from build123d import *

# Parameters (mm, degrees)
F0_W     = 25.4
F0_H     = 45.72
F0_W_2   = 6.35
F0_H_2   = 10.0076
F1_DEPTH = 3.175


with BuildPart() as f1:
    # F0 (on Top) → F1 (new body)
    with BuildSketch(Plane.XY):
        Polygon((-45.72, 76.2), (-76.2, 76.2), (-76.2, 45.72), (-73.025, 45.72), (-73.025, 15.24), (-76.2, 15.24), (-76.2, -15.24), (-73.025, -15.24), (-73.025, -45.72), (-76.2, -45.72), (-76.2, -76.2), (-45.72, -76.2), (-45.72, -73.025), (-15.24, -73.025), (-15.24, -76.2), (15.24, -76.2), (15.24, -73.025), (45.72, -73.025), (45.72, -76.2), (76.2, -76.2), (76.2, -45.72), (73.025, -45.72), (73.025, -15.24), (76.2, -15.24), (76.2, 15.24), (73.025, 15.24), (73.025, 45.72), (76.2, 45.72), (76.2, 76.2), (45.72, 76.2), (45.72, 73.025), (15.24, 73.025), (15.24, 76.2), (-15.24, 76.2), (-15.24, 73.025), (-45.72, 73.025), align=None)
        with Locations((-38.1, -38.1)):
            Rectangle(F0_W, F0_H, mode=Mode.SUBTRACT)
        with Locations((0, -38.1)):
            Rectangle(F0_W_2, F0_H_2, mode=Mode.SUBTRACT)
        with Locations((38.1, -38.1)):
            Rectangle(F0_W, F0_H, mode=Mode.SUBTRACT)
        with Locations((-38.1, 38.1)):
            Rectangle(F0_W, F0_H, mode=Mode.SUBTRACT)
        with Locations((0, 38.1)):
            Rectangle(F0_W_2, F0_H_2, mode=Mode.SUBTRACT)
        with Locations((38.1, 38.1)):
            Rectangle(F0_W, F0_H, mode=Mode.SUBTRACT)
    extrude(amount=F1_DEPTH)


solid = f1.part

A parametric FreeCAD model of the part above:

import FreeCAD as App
import Part
import Sketcher

V = App.Vector
Q = App.Units.Quantity

doc = App.newDocument("Part")
params = doc.addObject("Spreadsheet::Sheet", "Params")
for row, (alias, value) in enumerate([
    ("sketch1_width", "1 in"),
    ("sketch1_width2", "1.2 in"),
    ("sketch1_height", "1.8 in"),
    ("sketch1_width3", "0.25 in"),
    ("sketch1_width4", "0.125 in"),
    ("pad1_length", "0.125 in"),
], start=1):
    params.set(f"A{row}", alias)
    params.set(f"B{row}", "=" + value)
    params.setAlias(f"B{row}", alias)

body = doc.addObject("PartDesign::Body", "Body")

sketch1 = body.newObject("Sketcher::SketchObject", "Sketch")
sketch1.AttachmentSupport = (doc.getObject("XY_Plane"), [""])
sketch1.MapMode = "FlatFace"
sketch1.addGeometry([
    Part.LineSegment(V(-45.7, 76.2, 0), V(-76.2, 76.2, 0)),
    Part.LineSegment(V(-76.2, 76.2, 0), V(-76.2, 45.7, 0)),
    Part.LineSegment(V(-76.2, 45.7, 0), V(-73, 45.7, 0)),
    Part.LineSegment(V(-73, 45.7, 0), V(-73, 15.2, 0)),
    Part.LineSegment(V(-73, 15.2, 0), V(-76.2, 15.2, 0)),
    Part.LineSegment(V(-76.2, 15.2, 0), V(-76.2, -15.2, 0)),
    Part.LineSegment(V(-76.2, -15.2, 0), V(-73, -15.2, 0)),
    Part.LineSegment(V(-73, -15.2, 0), V(-73, -45.7, 0)),
    Part.LineSegment(V(-73, -45.7, 0), V(-76.2, -45.7, 0)),
    Part.LineSegment(V(-76.2, -45.7, 0), V(-76.2, -76.2, 0)),
    Part.LineSegment(V(-76.2, -76.2, 0), V(-45.7, -76.2, 0)),
    Part.LineSegment(V(-45.7, -76.2, 0), V(-45.7, -73, 0)),
    Part.LineSegment(V(-45.7, -73, 0), V(-15.2, -73, 0)),
    Part.LineSegment(V(-15.2, -73, 0), V(-15.2, -76.2, 0)),
    Part.LineSegment(V(-15.2, -76.2, 0), V(15.2, -76.2, 0)),
    Part.LineSegment(V(15.2, -76.2, 0), V(15.2, -73, 0)),
    Part.LineSegment(V(15.2, -73, 0), V(45.7, -73, 0)),
    Part.LineSegment(V(45.7, -73, 0), V(45.7, -76.2, 0)),
    Part.LineSegment(V(45.7, -76.2, 0), V(76.2, -76.2, 0)),
    Part.LineSegment(V(76.2, -76.2, 0), V(76.2, -45.7, 0)),
    Part.LineSegment(V(76.2, -45.7, 0), V(73, -45.7, 0)),
    Part.LineSegment(V(73, -45.7, 0), V(73, -15.2, 0)),
    Part.LineSegment(V(73, -15.2, 0), V(76.2, -15.2, 0)),
    Part.LineSegment(V(76.2, -15.2, 0), V(76.2, 15.2, 0)),
    Part.LineSegment(V(76.2, 15.2, 0), V(73, 15.2, 0)),
    Part.LineSegment(V(73, 15.2, 0), V(73, 45.7, 0)),
    Part.LineSegment(V(73, 45.7, 0), V(76.2, 45.7, 0)),
    Part.LineSegment(V(76.2, 45.7, 0), V(76.2, 76.2, 0)),
    Part.LineSegment(V(76.2, 76.2, 0), V(45.7, 76.2, 0)),
    Part.LineSegment(V(45.7, 76.2, 0), V(45.7, 73, 0)),
    Part.LineSegment(V(45.7, 73, 0), V(15.2, 73, 0)),
    Part.LineSegment(V(15.2, 73, 0), V(15.2, 76.2, 0)),
    Part.LineSegment(V(15.2, 76.2, 0), V(-15.2, 76.2, 0)),
    Part.LineSegment(V(-15.2, 76.2, 0), V(-15.2, 73, 0)),
    Part.LineSegment(V(-15.2, 73, 0), V(-45.7, 73, 0)),
    Part.LineSegment(V(-45.7, 73, 0), V(-45.7, 76.2, 0)),
    Part.LineSegment(V(-25.4, -61, 0), V(-50.8, -61, 0)),
    Part.LineSegment(V(-50.8, -61, 0), V(-50.8, -15.2, 0)),
    Part.LineSegment(V(-50.8, -15.2, 0), V(-25.4, -15.2, 0)),
    Part.LineSegment(V(-25.4, -15.2, 0), V(-25.4, -61, 0)),
    Part.LineSegment(V(3.2, -43.1, 0), V(-3.2, -43.1, 0)),
    Part.LineSegment(V(-3.2, -43.1, 0), V(-3.2, -33.1, 0)),
    Part.LineSegment(V(-3.2, -33.1, 0), V(3.2, -33.1, 0)),
    Part.LineSegment(V(3.2, -33.1, 0), V(3.2, -43.1, 0)),
    Part.LineSegment(V(50.8, -61, 0), V(25.4, -61, 0)),
    Part.LineSegment(V(25.4, -61, 0), V(25.4, -15.2, 0)),
    Part.LineSegment(V(25.4, -15.2, 0), V(50.8, -15.2, 0)),
    Part.LineSegment(V(50.8, -15.2, 0), V(50.8, -61, 0)),
    Part.LineSegment(V(-25.4, 15.2, 0), V(-50.8, 15.2, 0)),
    Part.LineSegment(V(-50.8, 15.2, 0), V(-50.8, 61, 0)),
    Part.LineSegment(V(-50.8, 61, 0), V(-25.4, 61, 0)),
    Part.LineSegment(V(-25.4, 61, 0), V(-25.4, 15.2, 0)),
    Part.LineSegment(V(3.2, 33.1, 0), V(-3.2, 33.1, 0)),
    Part.LineSegment(V(-3.2, 33.1, 0), V(-3.2, 43.1, 0)),
    Part.LineSegment(V(-3.2, 43.1, 0), V(3.2, 43.1, 0)),
    Part.LineSegment(V(3.2, 43.1, 0), V(3.2, 33.1, 0)),
    Part.LineSegment(V(50.8, 15.2, 0), V(25.4, 15.2, 0)),
    Part.LineSegment(V(25.4, 15.2, 0), V(25.4, 61, 0)),
    Part.LineSegment(V(25.4, 61, 0), V(50.8, 61, 0)),
    Part.LineSegment(V(50.8, 61, 0), V(50.8, 15.2, 0)),
], False)
sketch1.addConstraint([
    Sketcher.Constraint("Coincident", 0, 2, 1, 1),
    Sketcher.Constraint("Coincident", 1, 2, 2, 1),
    Sketcher.Constraint("Coincident", 2, 2, 3, 1),
    Sketcher.Constraint("Coincident", 3, 2, 4, 1),
    Sketcher.Constraint("Coincident", 4, 2, 5, 1),
    Sketcher.Constraint("Coincident", 5, 2, 6, 1),
    Sketcher.Constraint("Coincident", 6, 2, 7, 1),
    Sketcher.Constraint("Coincident", 7, 2, 8, 1),
    Sketcher.Constraint("Coincident", 8, 2, 9, 1),
    Sketcher.Constraint("Coincident", 9, 2, 10, 1),
    Sketcher.Constraint("Coincident", 10, 2, 11, 1),
    Sketcher.Constraint("Coincident", 11, 2, 12, 1),
    Sketcher.Constraint("Coincident", 12, 2, 13, 1),
    Sketcher.Constraint("Coincident", 13, 2, 14, 1),
    Sketcher.Constraint("Coincident", 14, 2, 15, 1),
    Sketcher.Constraint("Coincident", 15, 2, 16, 1),
    Sketcher.Constraint("Coincident", 16, 2, 17, 1),
    Sketcher.Constraint("Coincident", 17, 2, 18, 1),
    Sketcher.Constraint("Coincident", 18, 2, 19, 1),
    Sketcher.Constraint("Coincident", 19, 2, 20, 1),
    Sketcher.Constraint("Coincident", 20, 2, 21, 1),
    Sketcher.Constraint("Coincident", 21, 2, 22, 1),
    Sketcher.Constraint("Coincident", 22, 2, 23, 1),
    Sketcher.Constraint("Coincident", 23, 2, 24, 1),
    Sketcher.Constraint("Coincident", 24, 2, 25, 1),
    Sketcher.Constraint("Coincident", 25, 2, 26, 1),
    Sketcher.Constraint("Coincident", 26, 2, 27, 1),
    Sketcher.Constraint("Coincident", 27, 2, 28, 1),
    Sketcher.Constraint("Coincident", 28, 2, 29, 1),
    Sketcher.Constraint("Coincident", 29, 2, 30, 1),
    Sketcher.Constraint("Coincident", 30, 2, 31, 1),
    Sketcher.Constraint("Coincident", 31, 2, 32, 1),
    Sketcher.Constraint("Coincident", 32, 2, 33, 1),
    Sketcher.Constraint("Coincident", 33, 2, 34, 1),
    Sketcher.Constraint("Coincident", 34, 2, 35, 1),
    Sketcher.Constraint("Coincident", 35, 2, 0, 1),
    Sketcher.Constraint("Coincident", 36, 2, 37, 1),
    Sketcher.Constraint("Coincident", 37, 2, 38, 1),
    Sketcher.Constraint("Coincident", 38, 2, 39, 1),
    Sketcher.Constraint("Coincident", 39, 2, 36, 1),
    Sketcher.Constraint("Coincident", 40, 2, 41, 1),
    Sketcher.Constraint("Coincident", 41, 2, 42, 1),
    Sketcher.Constraint("Coincident", 42, 2, 43, 1),
    Sketcher.Constraint("Coincident", 43, 2, 40, 1),
    Sketcher.Constraint("Coincident", 44, 2, 45, 1),
    Sketcher.Constraint("Coincident", 45, 2, 46, 1),
    Sketcher.Constraint("Coincident", 46, 2, 47, 1),
    Sketcher.Constraint("Coincident", 47, 2, 44, 1),
    Sketcher.Constraint("Coincident", 48, 2, 49, 1),
    Sketcher.Constraint("Coincident", 49, 2, 50, 1),
    Sketcher.Constraint("Coincident", 50, 2, 51, 1),
    Sketcher.Constraint("Coincident", 51, 2, 48, 1),
    Sketcher.Constraint("Coincident", 52, 2, 53, 1),
    Sketcher.Constraint("Coincident", 53, 2, 54, 1),
    Sketcher.Constraint("Coincident", 54, 2, 55, 1),
    Sketcher.Constraint("Coincident", 55, 2, 52, 1),
    Sketcher.Constraint("Coincident", 56, 2, 57, 1),
    Sketcher.Constraint("Coincident", 57, 2, 58, 1),
    Sketcher.Constraint("Coincident", 58, 2, 59, 1),
    Sketcher.Constraint("Coincident", 59, 2, 56, 1),
    Sketcher.Constraint("Horizontal", 0),
    Sketcher.Constraint("Vertical", 1),
    Sketcher.Constraint("Horizontal", 2),
    Sketcher.Constraint("Vertical", 3),
    Sketcher.Constraint("Horizontal", 4),
    Sketcher.Constraint("Vertical", 5),
    Sketcher.Constraint("Horizontal", 6),
    Sketcher.Constraint("Vertical", 7),
    Sketcher.Constraint("Horizontal", 8),
    Sketcher.Constraint("Vertical", 9),
    Sketcher.Constraint("Horizontal", 10),
    Sketcher.Constraint("Vertical", 11),
    Sketcher.Constraint("Horizontal", 12),
    Sketcher.Constraint("Vertical", 13),
    Sketcher.Constraint("Horizontal", 14),
    Sketcher.Constraint("Vertical", 15),
    Sketcher.Constraint("Horizontal", 16),
    Sketcher.Constraint("Vertical", 17),
    Sketcher.Constraint("Horizontal", 18),
    Sketcher.Constraint("Vertical", 19),
    Sketcher.Constraint("Horizontal", 20),
    Sketcher.Constraint("Vertical", 21),
    Sketcher.Constraint("Horizontal", 22),
    Sketcher.Constraint("Vertical", 23),
    Sketcher.Constraint("Horizontal", 24),
    Sketcher.Constraint("Vertical", 25),
    Sketcher.Constraint("Horizontal", 26),
    Sketcher.Constraint("Vertical", 27),
    Sketcher.Constraint("Horizontal", 28),
    Sketcher.Constraint("Vertical", 29),
    Sketcher.Constraint("Horizontal", 30),
    Sketcher.Constraint("Vertical", 31),
    Sketcher.Constraint("Horizontal", 32),
    Sketcher.Constraint("Vertical", 33),
    Sketcher.Constraint("Horizontal", 34),
    Sketcher.Constraint("Vertical", 35),
    Sketcher.Constraint("Horizontal", 36),
    Sketcher.Constraint("Vertical", 37),
    Sketcher.Constraint("Horizontal", 38),
    Sketcher.Constraint("Vertical", 39),
    Sketcher.Constraint("Horizontal", 40),
    Sketcher.Constraint("Vertical", 41),
    Sketcher.Constraint("Horizontal", 42),
    Sketcher.Constraint("Vertical", 43),
    Sketcher.Constraint("Horizontal", 44),
    Sketcher.Constraint("Vertical", 45),
    Sketcher.Constraint("Horizontal", 46),
    Sketcher.Constraint("Vertical", 47),
    Sketcher.Constraint("Horizontal", 48),
    Sketcher.Constraint("Vertical", 49),
    Sketcher.Constraint("Horizontal", 50),
    Sketcher.Constraint("Vertical", 51),
    Sketcher.Constraint("Horizontal", 52),
    Sketcher.Constraint("Vertical", 53),
    Sketcher.Constraint("Horizontal", 54),
    Sketcher.Constraint("Vertical", 55),
    Sketcher.Constraint("Horizontal", 56),
    Sketcher.Constraint("Vertical", 57),
    Sketcher.Constraint("Horizontal", 58),
    Sketcher.Constraint("Vertical", 59),
    Sketcher.Constraint("Symmetric", 0, 2, 18, 2, -1, 1),
    Sketcher.Constraint("Symmetric", 2, 2, 20, 2, -1, 1),
    Sketcher.Constraint("Symmetric", 4, 2, 22, 2, -1, 1),
    Sketcher.Constraint("Symmetric", 6, 2, 24, 2, -1, 1),
    Sketcher.Constraint("Symmetric", 8, 2, 26, 2, -1, 1),
    Sketcher.Constraint("Symmetric", 10, 2, 28, 2, -1, 1),
    Sketcher.Constraint("Symmetric", 12, 2, 30, 2, -1, 1),
    Sketcher.Constraint("Symmetric", 14, 2, 32, 2, -1, 1),
    Sketcher.Constraint("Symmetric", 16, 2, 34, 2, -1, 1),
    Sketcher.Constraint("Symmetric", 46, 2, 48, 2, -1, 1),
    Sketcher.Constraint("Symmetric", 44, 2, 50, 2, -1, 1),
    Sketcher.Constraint("Symmetric", 42, 2, 52, 2, -1, 1),
    Sketcher.Constraint("Symmetric", 40, 2, 54, 2, -1, 1),
    Sketcher.Constraint("Symmetric", 38, 2, 56, 2, -1, 1),
    Sketcher.Constraint("Symmetric", 36, 2, 58, 2, -1, 1),
    Sketcher.Constraint("Symmetric", 12, 2, 15, 2, -2),
    Sketcher.Constraint("Symmetric", 10, 2, 17, 2, -2),
    Sketcher.Constraint("Symmetric", 8, 2, 19, 2, -2),
    Sketcher.Constraint("Symmetric", 6, 2, 21, 2, -2),
    Sketcher.Constraint("Symmetric", 39, 2, 44, 2, -2),
    Sketcher.Constraint("Symmetric", 37, 2, 46, 2, -2),
    Sketcher.Constraint("Horizontal", 10, 2, 13, 2),
    Sketcher.Constraint("Horizontal", 22, 2, 37, 2),
    Sketcher.Constraint("Vertical", 1, 2, 4, 2),
    Sketcher.Constraint("Vertical", 41, 2, 52, 2),
    Sketcher.Constraint("Equal", 10, 12),
    Sketcher.Constraint("Equal", 12, 14),
    Sketcher.Constraint("Equal", 34, 1),
    Sketcher.Constraint("Equal", 1, 3),
    Sketcher.Constraint("Equal", 3, 5),
    Sketcher.Constraint("Equal", 26, 11),
    Sketcher.Constraint("DistanceX", 36, 2, 36, 1, Q("1 in")),
    Sketcher.Constraint("DistanceX", 0, 2, 0, 1, Q("1.2 in")),
    Sketcher.Constraint("DistanceY", 37, 1, 37, 2, Q("1.8 in")),
    Sketcher.Constraint("DistanceX", 36, 2, -1, 1, Q("2 in")),
    Sketcher.Constraint("DistanceX", 40, 2, 40, 1, Q("0.25 in")),
    Sketcher.Constraint("DistanceX", 2, 1, 2, 2, Q("0.125 in")),
    Sketcher.Constraint("DistanceY", 41, 1, 41, 2, Q("0.394 in")),
    Sketcher.Constraint("DistanceY", 40, 2, -1, 1, Q("1.697 in")),
])
sketch1.setExpression("Constraints[151]", "Params.sketch1_width")
sketch1.setExpression("Constraints[152]", "Params.sketch1_width2")
sketch1.setExpression("Constraints[153]", "Params.sketch1_height")
sketch1.setExpression("Constraints[155]", "Params.sketch1_width3")
sketch1.setExpression("Constraints[156]", "Params.sketch1_width4")
pad1 = body.newObject("PartDesign::Pad", "Pad")
pad1.Profile = sketch1
pad1.setExpression("Length", "Params.pad1_length")

doc.recompute()
